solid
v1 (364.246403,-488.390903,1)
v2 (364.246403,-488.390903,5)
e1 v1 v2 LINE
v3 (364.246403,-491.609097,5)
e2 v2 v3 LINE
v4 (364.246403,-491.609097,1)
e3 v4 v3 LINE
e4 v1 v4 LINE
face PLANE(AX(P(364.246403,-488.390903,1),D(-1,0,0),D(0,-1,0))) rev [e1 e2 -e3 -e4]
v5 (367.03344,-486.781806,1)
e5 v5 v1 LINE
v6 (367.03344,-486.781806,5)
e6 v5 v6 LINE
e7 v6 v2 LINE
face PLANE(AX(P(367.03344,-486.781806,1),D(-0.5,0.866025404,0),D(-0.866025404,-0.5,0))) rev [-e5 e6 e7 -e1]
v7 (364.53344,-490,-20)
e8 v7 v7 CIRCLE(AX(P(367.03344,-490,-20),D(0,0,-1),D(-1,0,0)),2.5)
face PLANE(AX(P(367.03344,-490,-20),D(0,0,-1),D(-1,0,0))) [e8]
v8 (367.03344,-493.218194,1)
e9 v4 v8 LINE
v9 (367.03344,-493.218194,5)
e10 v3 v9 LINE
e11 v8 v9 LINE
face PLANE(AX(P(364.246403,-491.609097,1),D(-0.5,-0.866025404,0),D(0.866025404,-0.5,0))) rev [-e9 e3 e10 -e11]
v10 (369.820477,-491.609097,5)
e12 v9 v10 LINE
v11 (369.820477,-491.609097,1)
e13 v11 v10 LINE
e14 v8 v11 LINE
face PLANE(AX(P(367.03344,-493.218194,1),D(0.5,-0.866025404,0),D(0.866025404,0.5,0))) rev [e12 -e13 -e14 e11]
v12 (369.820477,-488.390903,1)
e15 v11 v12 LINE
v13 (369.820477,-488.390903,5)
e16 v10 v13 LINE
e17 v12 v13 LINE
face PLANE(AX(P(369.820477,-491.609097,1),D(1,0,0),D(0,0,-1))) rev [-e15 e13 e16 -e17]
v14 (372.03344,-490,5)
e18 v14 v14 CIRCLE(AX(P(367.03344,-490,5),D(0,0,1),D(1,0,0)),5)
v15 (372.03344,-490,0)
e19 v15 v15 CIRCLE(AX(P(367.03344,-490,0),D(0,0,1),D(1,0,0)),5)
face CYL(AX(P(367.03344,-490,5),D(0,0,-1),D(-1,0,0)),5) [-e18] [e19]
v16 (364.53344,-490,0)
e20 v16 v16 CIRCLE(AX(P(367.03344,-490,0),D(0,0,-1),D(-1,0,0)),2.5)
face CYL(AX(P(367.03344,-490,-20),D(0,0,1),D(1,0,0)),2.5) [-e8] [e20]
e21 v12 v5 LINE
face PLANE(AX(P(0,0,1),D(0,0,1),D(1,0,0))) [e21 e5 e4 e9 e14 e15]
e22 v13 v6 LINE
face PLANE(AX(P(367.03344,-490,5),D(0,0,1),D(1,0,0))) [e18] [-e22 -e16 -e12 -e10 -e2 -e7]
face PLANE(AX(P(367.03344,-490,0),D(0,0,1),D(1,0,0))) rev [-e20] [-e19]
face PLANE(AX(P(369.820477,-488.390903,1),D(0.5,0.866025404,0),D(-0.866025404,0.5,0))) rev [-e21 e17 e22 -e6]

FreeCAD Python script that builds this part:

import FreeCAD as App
import Part
import Sketcher
from FreeCAD import Vector
Q = App.Units.Quantity

doc = App.newDocument("Part")
body = doc.addObject("PartDesign::Body", "Body")

# Sketch on XY plane
sketch1 = doc.addObject("Sketcher::SketchObject", "Sketch")
body.addObject(sketch1)
sketch1.AttachmentSupport = (doc.XY_Plane, [""])
sketch1.MapMode = "FlatFace"
sketch1.addGeometry(Part.Circle(Vector(367.03344, -490, 0), Vector(0, 0, 1), 5), False)
sketch1.addConstraint(Sketcher.Constraint("Diameter", 0, Q("10 mm")))
sketch1.addConstraint(Sketcher.Constraint("DistanceY", 0, 3, -1, 1, Q("490 mm")))
sketch1.addConstraint(Sketcher.Constraint("DistanceX", -1, 1, 0, 3, Q("367.03344 mm")))
pad1 = doc.addObject("PartDesign::Pad", "Pad")
body.addObject(pad1)
pad1.Profile = sketch1
pad1.Length = 5

# Sketch on XY plane
sketch2 = doc.addObject("Sketcher::SketchObject", "Sketch001")
body.addObject(sketch2)
sketch2.AttachmentSupport = (doc.XY_Plane, [""])
sketch2.MapMode = "FlatFace"
sketch2.addGeometry(Part.Circle(Vector(367.03344, -490, 0), Vector(0, 0, 1), 2.5), False)
sketch2.addConstraint(Sketcher.Constraint("Diameter", 0, Q("5 mm")))
sketch2.addConstraint(Sketcher.Constraint("DistanceY", 0, 3, -1, 1, Q("490 mm")))
sketch2.addConstraint(Sketcher.Constraint("DistanceX", -1, 1, 0, 3, Q("367.03344 mm")))
pad2 = doc.addObject("PartDesign::Pad", "Pad001")
body.addObject(pad2)
pad2.Profile = sketch2
pad2.Length = 20
pad2.Reversed = True

# Sketch on XY plane
sketch3 = doc.addObject("Sketcher::SketchObject", "Sketch002")
body.addObject(sketch3)
sketch3.AttachmentSupport = (doc.XY_Plane, [""])
sketch3.MapMode = "FlatFace"
sketch3.AttachmentOffset = App.Placement(Vector(0, 0, 5), App.Rotation())
sketch3.addGeometry(Part.LineSegment(Vector(367.03344, -493.218194, 0), Vector(369.820477, -491.609097, 0)), False)
sketch3.addGeometry(Part.LineSegment(Vector(369.820477, -491.609097, 0), Vector(369.820477, -488.390903, 0)), False)
sketch3.addGeometry(Part.LineSegment(Vector(369.820477, -488.390903, 0), Vector(367.03344, -486.781806, 0)), False)
sketch3.addGeometry(Part.LineSegment(Vector(367.03344, -486.781806, 0), Vector(364.246403, -488.390903, 0)), False)
sketch3.addGeometry(Part.LineSegment(Vector(364.246403, -488.390903, 0), Vector(364.246403, -491.609097, 0)), False)
sketch3.addGeometry(Part.LineSegment(Vector(364.246403, -491.609097, 0), Vector(367.03344, -493.218194, 0)), False)
sketch3.addConstraint(Sketcher.Constraint("Coincident", 0, 2, 1, 1))
sketch3.addConstraint(Sketcher.Constraint("Coincident", 1, 2, 2, 1))
sketch3.addConstraint(Sketcher.Constraint("Coincident", 2, 2, 3, 1))
sketch3.addConstraint(Sketcher.Constraint("Coincident", 3, 2, 4, 1))
sketch3.addConstraint(Sketcher.Constraint("Coincident", 4, 2, 5, 1))
sketch3.addConstraint(Sketcher.Constraint("Coincident", 5, 2, 0, 1))
sketch3.addConstraint(Sketcher.Constraint("Vertical", 1))
sketch3.addConstraint(Sketcher.Constraint("Vertical", 4))
sketch3.addConstraint(Sketcher.Constraint("Parallel", 0, 3))
sketch3.addConstraint(Sketcher.Constraint("Parallel", 2, 5))
sketch3.addConstraint(Sketcher.Constraint("Horizontal", 1, 2, 3, 2))
sketch3.addConstraint(Sketcher.Constraint("Horizontal", 0, 2, 4, 2))
sketch3.addConstraint(Sketcher.Constraint("Vertical", 2, 2, 5, 2))
sketch3.addConstraint(Sketcher.Constraint("Angle", 0, Q("30 deg")))
sketch3.addConstraint(Sketcher.Constraint("DistanceY", 1, 1, 1, 2, Q("3.218194 mm")))
sketch3.addConstraint(Sketcher.Constraint("DistanceX", -1, 1, 2, 2, Q("367.03344 mm")))
sketch3.addConstraint(Sketcher.Constraint("DistanceY", 0, 2, 2, 2, Q("4.82729 mm")))
sketch3.addConstraint(Sketcher.Constraint("DistanceY", 0, 2, -1, 1, Q("491.609097 mm")))
pocket1 = doc.addObject("PartDesign::Pocket", "Pocket")
body.addObject(pocket1)
pocket1.Profile = sketch3
pocket1.Length = 4

doc.recompute()
